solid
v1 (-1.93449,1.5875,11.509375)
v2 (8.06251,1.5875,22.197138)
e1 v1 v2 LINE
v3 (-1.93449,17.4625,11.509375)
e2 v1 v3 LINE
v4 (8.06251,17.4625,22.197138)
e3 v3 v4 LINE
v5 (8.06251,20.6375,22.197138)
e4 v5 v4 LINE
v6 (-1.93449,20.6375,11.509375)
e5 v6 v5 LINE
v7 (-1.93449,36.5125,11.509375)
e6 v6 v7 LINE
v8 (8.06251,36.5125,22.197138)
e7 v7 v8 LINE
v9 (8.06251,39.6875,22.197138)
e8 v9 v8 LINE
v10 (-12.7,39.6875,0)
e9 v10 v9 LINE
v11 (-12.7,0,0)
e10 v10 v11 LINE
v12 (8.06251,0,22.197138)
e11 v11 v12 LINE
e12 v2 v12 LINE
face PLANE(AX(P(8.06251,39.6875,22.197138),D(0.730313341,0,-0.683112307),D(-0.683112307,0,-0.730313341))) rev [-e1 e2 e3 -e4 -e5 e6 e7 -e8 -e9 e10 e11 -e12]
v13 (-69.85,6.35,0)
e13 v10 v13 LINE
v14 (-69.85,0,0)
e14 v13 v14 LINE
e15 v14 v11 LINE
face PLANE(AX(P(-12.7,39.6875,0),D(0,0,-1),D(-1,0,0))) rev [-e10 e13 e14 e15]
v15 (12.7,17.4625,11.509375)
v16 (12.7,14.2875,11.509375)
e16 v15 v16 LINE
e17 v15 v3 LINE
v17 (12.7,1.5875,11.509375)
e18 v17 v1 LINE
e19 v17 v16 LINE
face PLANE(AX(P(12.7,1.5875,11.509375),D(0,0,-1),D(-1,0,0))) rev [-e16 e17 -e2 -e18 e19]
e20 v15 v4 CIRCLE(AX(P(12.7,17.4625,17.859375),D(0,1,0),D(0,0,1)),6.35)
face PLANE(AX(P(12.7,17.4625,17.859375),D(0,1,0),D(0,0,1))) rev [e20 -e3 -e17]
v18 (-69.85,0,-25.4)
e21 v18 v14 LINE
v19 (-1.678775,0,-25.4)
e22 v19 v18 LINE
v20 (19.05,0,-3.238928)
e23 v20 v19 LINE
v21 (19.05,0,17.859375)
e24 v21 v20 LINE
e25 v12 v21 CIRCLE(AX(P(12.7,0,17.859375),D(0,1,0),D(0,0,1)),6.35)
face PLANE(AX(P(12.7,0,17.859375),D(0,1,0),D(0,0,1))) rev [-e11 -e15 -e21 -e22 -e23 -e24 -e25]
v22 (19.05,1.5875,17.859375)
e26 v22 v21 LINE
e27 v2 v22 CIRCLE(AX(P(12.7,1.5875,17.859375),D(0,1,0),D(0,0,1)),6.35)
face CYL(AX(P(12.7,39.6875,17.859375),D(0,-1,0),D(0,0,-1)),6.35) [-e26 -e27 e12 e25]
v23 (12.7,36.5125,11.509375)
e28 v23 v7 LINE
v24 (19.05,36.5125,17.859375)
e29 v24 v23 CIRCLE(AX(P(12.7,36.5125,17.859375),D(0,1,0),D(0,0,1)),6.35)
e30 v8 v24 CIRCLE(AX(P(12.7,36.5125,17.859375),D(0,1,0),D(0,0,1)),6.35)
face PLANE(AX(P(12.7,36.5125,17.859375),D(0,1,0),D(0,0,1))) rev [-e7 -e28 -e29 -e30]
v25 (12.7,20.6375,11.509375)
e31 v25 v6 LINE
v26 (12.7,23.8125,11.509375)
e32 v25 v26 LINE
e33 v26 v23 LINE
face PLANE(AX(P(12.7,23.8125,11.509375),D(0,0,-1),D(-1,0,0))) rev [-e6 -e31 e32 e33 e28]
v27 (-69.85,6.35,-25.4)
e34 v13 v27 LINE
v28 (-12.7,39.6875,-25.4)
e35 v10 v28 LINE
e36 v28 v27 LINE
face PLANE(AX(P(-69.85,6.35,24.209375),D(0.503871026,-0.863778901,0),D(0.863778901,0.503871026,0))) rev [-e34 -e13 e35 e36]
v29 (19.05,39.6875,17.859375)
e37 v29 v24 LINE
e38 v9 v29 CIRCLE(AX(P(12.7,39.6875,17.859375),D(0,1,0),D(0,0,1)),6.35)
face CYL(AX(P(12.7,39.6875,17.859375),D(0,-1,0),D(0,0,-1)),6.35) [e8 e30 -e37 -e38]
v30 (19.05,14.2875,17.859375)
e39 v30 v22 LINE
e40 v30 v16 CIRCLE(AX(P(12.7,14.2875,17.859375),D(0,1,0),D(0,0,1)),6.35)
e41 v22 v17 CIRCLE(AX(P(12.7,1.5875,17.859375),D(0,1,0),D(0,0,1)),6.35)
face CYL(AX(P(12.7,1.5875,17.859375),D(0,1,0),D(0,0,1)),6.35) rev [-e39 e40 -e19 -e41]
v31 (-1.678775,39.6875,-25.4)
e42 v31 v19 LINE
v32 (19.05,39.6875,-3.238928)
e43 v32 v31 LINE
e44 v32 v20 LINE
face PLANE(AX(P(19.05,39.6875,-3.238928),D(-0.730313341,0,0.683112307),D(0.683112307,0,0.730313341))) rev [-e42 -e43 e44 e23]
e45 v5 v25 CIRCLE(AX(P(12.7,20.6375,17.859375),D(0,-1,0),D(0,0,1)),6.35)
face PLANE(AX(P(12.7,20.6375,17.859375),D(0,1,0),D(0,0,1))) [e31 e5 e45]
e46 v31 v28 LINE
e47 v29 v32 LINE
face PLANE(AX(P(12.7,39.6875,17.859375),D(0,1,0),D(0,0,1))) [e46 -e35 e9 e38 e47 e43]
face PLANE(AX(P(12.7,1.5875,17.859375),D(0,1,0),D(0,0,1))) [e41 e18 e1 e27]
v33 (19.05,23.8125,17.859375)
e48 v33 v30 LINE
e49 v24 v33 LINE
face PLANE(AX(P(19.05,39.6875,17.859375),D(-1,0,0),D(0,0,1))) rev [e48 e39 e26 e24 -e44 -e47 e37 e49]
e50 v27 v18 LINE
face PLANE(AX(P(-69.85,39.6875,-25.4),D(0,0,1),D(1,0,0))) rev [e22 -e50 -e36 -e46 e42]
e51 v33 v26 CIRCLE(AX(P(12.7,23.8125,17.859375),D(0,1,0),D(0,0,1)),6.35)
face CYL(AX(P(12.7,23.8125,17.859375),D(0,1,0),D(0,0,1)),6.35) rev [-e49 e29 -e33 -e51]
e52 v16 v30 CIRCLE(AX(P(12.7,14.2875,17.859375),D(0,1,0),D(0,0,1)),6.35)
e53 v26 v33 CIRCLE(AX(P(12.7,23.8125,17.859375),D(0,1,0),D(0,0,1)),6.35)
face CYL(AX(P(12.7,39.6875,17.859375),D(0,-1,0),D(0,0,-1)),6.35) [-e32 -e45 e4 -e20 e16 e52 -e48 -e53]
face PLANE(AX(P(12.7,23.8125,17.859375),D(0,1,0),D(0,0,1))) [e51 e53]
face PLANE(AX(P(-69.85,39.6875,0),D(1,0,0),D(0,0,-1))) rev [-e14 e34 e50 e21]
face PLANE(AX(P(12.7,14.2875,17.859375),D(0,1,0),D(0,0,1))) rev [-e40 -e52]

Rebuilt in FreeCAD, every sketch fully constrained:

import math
import FreeCAD as App
import Part
import Sketcher

V = App.Vector
Q = App.Units.Quantity


def add_polygon(sketch, points):
    """Adds a closed chain of lines whose ends are joined by coincident constraints."""
    first, n = sketch.GeometryCount, len(points)
    for a, b in zip(points, points[1:] + points[:1]):
        sketch.addGeometry(Part.LineSegment(App.Vector(*a, 0), App.Vector(*b, 0)), False)
    for i in range(n):
        sketch.addConstraint(Sketcher.Constraint("Coincident", first + i, 2, first + (i + 1) % n, 1))

doc = App.newDocument("Part")
body = doc.addObject("PartDesign::Body", "Body")

# Sketch on XZ plane
sketch1 = doc.addObject("Sketcher::SketchObject", "Sketch")
body.addObject(sketch1)
sketch1.AttachmentSupport = (doc.XZ_Plane, [""])
sketch1.MapMode = "FlatFace"
sketch1.addGeometry([
    Part.LineSegment(V(-70, 0, 0), V(-13, 0, 0)),  # 0
    Part.LineSegment(V(-13, 0, 0), V(8, 22, 0)),  # 1
    Part.ArcOfCircle(Part.Circle(V(13, 18, 0), V(0, 0, 1), 6), math.radians(0), math.radians(137)),  # 2
    Part.LineSegment(V(19, 18, 0), V(19, -3, 0)),  # 3
    Part.LineSegment(V(19, -3, 0), V(-2, -25, 0)),  # 4
    Part.LineSegment(V(-2, -25, 0), V(-70, -25, 0)),  # 5
    Part.LineSegment(V(-70, -25, 0), V(-70, 0, 0)),  # 6
], False)
sketch1.addConstraint([
    Sketcher.Constraint("Coincident", 0, 2, 1, 1),
    Sketcher.Constraint("Tangent", 1, 2, 2, 2),
    Sketcher.Constraint("Tangent", 2, 1, 3, 1),
    Sketcher.Constraint("Coincident", 3, 2, 4, 1),
    Sketcher.Constraint("Coincident", 4, 2, 5, 1),
    Sketcher.Constraint("Coincident", 5, 2, 6, 1),
    Sketcher.Constraint("Coincident", 6, 2, 0, 1),
    Sketcher.Constraint("Horizontal", 0),
    Sketcher.Constraint("Vertical", 3),
    Sketcher.Constraint("Horizontal", 5),
    Sketcher.Constraint("Vertical", 6),
    Sketcher.Constraint("PointOnObject", 0, 2, -1),
    Sketcher.Constraint("Parallel", 1, 4),
    Sketcher.Constraint("DistanceY", 6, 1, 6, 2, Q("1 in")),
    Sketcher.Constraint("Radius", 2, Q("0.25 in")),
    Sketcher.Constraint("DistanceX", 0, 2, 2, 3, Q("1 in")),
    Sketcher.Constraint("DistanceX", 0, 1, 0, 2, Q("2.25 in")),
    Sketcher.Constraint("DistanceX", -1, 1, 2, 3, Q("0.5 in")),
    Sketcher.Constraint("DistanceY", -1, 1, 2, 3, Q("0.703125 in")),
    Sketcher.Constraint("Distance", 4, 30.344608),
])
pad1 = doc.addObject("PartDesign::Pad", "Pad")
body.addObject(pad1)
pad1.Profile = sketch1
pad1.Length = Q("1.5625 in")
pad1.Reversed = True

# Sketch on XZ plane
sketch2 = doc.addObject("Sketcher::SketchObject", "Sketch001")
body.addObject(sketch2)
sketch2.AttachmentSupport = (doc.XZ_Plane, [""])
sketch2.MapMode = "FlatFace"
sketch2.AttachmentOffset = App.Placement(V(0, 0, -1.4375 * 25.4), App.Rotation())
sketch2.addGeometry([
    Part.LineSegment(V(13, 12, 0), V(-2, 12, 0)),
    Part.LineSegment(V(-2, 12, 0), V(8, 22, 0)),
    Part.ArcOfCircle(Part.Circle(V(13, 18, 0), V(0, 0, 1), 6), math.radians(-90), math.radians(137)),
], False)
sketch2.addConstraint([
    Sketcher.Constraint("Coincident", 0, 2, 1, 1),
    Sketcher.Constraint("Tangent", 1, 2, 2, 2),
    Sketcher.Constraint("Tangent", 2, 1, 0, 1),
    Sketcher.Constraint("Horizontal", 0),
    Sketcher.Constraint("Radius", 2, Q("0.25 in")),
    Sketcher.Constraint("DistanceX", -1, 1, 2, 3, Q("0.5 in")),
    Sketcher.Constraint("DistanceY", -1, 1, 2, 3, Q("0.703125 in")),
    Sketcher.Constraint("DistanceX", 0, 2, 0, 1, 14.63449),
])
pocket1 = doc.addObject("PartDesign::Pocket", "Pocket")
body.addObject(pocket1)
pocket1.Profile = sketch2
pocket1.Length = Q("0.5 in")
pocket1.Reversed = True

# Sketch on XZ plane
sketch3 = doc.addObject("Sketcher::SketchObject", "Sketch002")
body.addObject(sketch3)
sketch3.AttachmentSupport = (doc.XZ_Plane, [""])
sketch3.MapMode = "FlatFace"
sketch3.AttachmentOffset = App.Placement(V(0, 0, -0.5625 * 25.4), App.Rotation())
sketch3.addGeometry([
    Part.LineSegment(V(13, 12, 0), V(-2, 12, 0)),
    Part.LineSegment(V(-2, 12, 0), V(8, 22, 0)),
    Part.ArcOfCircle(Part.Circle(V(13, 18, 0), V(0, 0, 1), 6), math.radians(-90), math.radians(137)),
], False)
sketch3.addConstraint([
    Sketcher.Constraint("Coincident", 0, 2, 1, 1),
    Sketcher.Constraint("Tangent", 1, 2, 2, 2),
    Sketcher.Constraint("Tangent", 2, 1, 0, 1),
    Sketcher.Constraint("Horizontal", 0),
    Sketcher.Constraint("Radius", 2, Q("0.25 in")),
    Sketcher.Constraint("DistanceX", -1, 1, 2, 3, Q("0.5 in")),
    Sketcher.Constraint("DistanceY", -1, 1, 2, 3, Q("0.703125 in")),
    Sketcher.Constraint("DistanceX", 0, 2, 0, 1, 14.63449),
])
pocket2 = doc.addObject("PartDesign::Pocket", "Pocket001")
body.addObject(pocket2)
pocket2.Profile = sketch3
pocket2.Length = Q("0.5 in")
pocket2.Reversed = True

# Sketch on XZ plane
sketch4 = doc.addObject("Sketcher::SketchObject", "Sketch003")
body.addObject(sketch4)
sketch4.AttachmentSupport = (doc.XZ_Plane, [""])
sketch4.MapMode = "FlatFace"
sketch4.AttachmentOffset = App.Placement(V(0, 0, -0.9375 * 25.4), App.Rotation())
sketch4.addGeometry([
    Part.LineSegment(V(13, 12, 0), V(-2, 12, 0)),
    Part.LineSegment(V(-2, 12, 0), V(8, 22, 0)),
    Part.ArcOfCircle(Part.Circle(V(13, 18, 0), V(0, 0, 1), 6), math.radians(137), math.radians(270)),
], False)
sketch4.addConstraint([
    Sketcher.Constraint("Coincident", 0, 2, 1, 1),
    Sketcher.Constraint("Tangent", 1, 2, 2, 1),
    Sketcher.Constraint("Tangent", 2, 2, 0, 1),
    Sketcher.Constraint("Horizontal", 0),
    Sketcher.Constraint("Radius", 2, Q("0.25 in")),
    Sketcher.Constraint("DistanceX", -1, 1, 2, 3, Q("0.5 in")),
    Sketcher.Constraint("DistanceY", -1, 1, 2, 3, Q("0.703125 in")),
    Sketcher.Constraint("DistanceX", 0, 2, 0, 1, 14.63449),
])
pocket3 = doc.addObject("PartDesign::Pocket", "Pocket002")
body.addObject(pocket3)
pocket3.Profile = sketch4
pocket3.Length = Q("0.125 in")
pocket3.Reversed = True

# Sketch on XZ plane
sketch5 = doc.addObject("Sketcher::SketchObject", "Sketch004")
body.addObject(sketch5)
sketch5.AttachmentSupport = (doc.XZ_Plane, [""])
sketch5.MapMode = "FlatFace"
sketch5.AttachmentOffset = App.Placement(V(0, 0, -0.5625 * 25.4), App.Rotation())
sketch5.addGeometry([
    Part.LineSegment(V(13, 12, 0), V(-2, 12, 0)),
    Part.LineSegment(V(-2, 12, 0), V(8, 22, 0)),
    Part.ArcOfCircle(Part.Circle(V(13, 18, 0), V(0, 0, 1), 6), math.radians(137), math.radians(270)),
], False)
sketch5.addConstraint([
    Sketcher.Constraint("Coincident", 0, 2, 1, 1),
    Sketcher.Constraint("Tangent", 1, 2, 2, 1),
    Sketcher.Constraint("Tangent", 2, 2, 0, 1),
    Sketcher.Constraint("Horizontal", 0),
    Sketcher.Constraint("Radius", 2, Q("0.25 in")),
    Sketcher.Constraint("DistanceX", -1, 1, 2, 3, Q("0.5 in")),
    Sketcher.Constraint("DistanceY", -1, 1, 2, 3, Q("0.703125 in")),
    Sketcher.Constraint("DistanceX", 0, 2, 0, 1, 14.63449),
])
pocket4 = doc.addObject("PartDesign::Pocket", "Pocket003")
body.addObject(pocket4)
pocket4.Profile = sketch5
pocket4.Length = Q("0.125 in")

# Sketch on XY plane
sketch6 = doc.addObject("Sketcher::SketchObject", "Sketch005")
body.addObject(sketch6)
sketch6.AttachmentSupport = (doc.XY_Plane, [""])
sketch6.MapMode = "FlatFace"
sketch6.AttachmentOffset = App.Placement(V(0, 0, -1 * 25.4), App.Rotation())
add_polygon(sketch6, [(-13, 40), (-70, 6), (-70, 40)])  # lines 0-2
sketch6.addConstraint([
    Sketcher.Constraint("Vertical", 1),
    Sketcher.Constraint("Horizontal", 2),
    Sketcher.Constraint("DistanceX", 2, 1, 2, 2, Q("2.25 in")),
    Sketcher.Constraint("DistanceX", 2, 2, -1, 1, Q("0.5 in")),
    Sketcher.Constraint("DistanceY", 1, 1, 1, 2, Q("1.3125 in")),
    Sketcher.Constraint("DistanceY", -1, 1, 0, 2, Q("0.25 in")),
])
pocket5 = doc.addObject("PartDesign::Pocket", "Pocket004")
body.addObject(pocket5)
pocket5.Profile = sketch6
pocket5.Type = "ThroughAll"
pocket5.Reversed = True

doc.recompute()
